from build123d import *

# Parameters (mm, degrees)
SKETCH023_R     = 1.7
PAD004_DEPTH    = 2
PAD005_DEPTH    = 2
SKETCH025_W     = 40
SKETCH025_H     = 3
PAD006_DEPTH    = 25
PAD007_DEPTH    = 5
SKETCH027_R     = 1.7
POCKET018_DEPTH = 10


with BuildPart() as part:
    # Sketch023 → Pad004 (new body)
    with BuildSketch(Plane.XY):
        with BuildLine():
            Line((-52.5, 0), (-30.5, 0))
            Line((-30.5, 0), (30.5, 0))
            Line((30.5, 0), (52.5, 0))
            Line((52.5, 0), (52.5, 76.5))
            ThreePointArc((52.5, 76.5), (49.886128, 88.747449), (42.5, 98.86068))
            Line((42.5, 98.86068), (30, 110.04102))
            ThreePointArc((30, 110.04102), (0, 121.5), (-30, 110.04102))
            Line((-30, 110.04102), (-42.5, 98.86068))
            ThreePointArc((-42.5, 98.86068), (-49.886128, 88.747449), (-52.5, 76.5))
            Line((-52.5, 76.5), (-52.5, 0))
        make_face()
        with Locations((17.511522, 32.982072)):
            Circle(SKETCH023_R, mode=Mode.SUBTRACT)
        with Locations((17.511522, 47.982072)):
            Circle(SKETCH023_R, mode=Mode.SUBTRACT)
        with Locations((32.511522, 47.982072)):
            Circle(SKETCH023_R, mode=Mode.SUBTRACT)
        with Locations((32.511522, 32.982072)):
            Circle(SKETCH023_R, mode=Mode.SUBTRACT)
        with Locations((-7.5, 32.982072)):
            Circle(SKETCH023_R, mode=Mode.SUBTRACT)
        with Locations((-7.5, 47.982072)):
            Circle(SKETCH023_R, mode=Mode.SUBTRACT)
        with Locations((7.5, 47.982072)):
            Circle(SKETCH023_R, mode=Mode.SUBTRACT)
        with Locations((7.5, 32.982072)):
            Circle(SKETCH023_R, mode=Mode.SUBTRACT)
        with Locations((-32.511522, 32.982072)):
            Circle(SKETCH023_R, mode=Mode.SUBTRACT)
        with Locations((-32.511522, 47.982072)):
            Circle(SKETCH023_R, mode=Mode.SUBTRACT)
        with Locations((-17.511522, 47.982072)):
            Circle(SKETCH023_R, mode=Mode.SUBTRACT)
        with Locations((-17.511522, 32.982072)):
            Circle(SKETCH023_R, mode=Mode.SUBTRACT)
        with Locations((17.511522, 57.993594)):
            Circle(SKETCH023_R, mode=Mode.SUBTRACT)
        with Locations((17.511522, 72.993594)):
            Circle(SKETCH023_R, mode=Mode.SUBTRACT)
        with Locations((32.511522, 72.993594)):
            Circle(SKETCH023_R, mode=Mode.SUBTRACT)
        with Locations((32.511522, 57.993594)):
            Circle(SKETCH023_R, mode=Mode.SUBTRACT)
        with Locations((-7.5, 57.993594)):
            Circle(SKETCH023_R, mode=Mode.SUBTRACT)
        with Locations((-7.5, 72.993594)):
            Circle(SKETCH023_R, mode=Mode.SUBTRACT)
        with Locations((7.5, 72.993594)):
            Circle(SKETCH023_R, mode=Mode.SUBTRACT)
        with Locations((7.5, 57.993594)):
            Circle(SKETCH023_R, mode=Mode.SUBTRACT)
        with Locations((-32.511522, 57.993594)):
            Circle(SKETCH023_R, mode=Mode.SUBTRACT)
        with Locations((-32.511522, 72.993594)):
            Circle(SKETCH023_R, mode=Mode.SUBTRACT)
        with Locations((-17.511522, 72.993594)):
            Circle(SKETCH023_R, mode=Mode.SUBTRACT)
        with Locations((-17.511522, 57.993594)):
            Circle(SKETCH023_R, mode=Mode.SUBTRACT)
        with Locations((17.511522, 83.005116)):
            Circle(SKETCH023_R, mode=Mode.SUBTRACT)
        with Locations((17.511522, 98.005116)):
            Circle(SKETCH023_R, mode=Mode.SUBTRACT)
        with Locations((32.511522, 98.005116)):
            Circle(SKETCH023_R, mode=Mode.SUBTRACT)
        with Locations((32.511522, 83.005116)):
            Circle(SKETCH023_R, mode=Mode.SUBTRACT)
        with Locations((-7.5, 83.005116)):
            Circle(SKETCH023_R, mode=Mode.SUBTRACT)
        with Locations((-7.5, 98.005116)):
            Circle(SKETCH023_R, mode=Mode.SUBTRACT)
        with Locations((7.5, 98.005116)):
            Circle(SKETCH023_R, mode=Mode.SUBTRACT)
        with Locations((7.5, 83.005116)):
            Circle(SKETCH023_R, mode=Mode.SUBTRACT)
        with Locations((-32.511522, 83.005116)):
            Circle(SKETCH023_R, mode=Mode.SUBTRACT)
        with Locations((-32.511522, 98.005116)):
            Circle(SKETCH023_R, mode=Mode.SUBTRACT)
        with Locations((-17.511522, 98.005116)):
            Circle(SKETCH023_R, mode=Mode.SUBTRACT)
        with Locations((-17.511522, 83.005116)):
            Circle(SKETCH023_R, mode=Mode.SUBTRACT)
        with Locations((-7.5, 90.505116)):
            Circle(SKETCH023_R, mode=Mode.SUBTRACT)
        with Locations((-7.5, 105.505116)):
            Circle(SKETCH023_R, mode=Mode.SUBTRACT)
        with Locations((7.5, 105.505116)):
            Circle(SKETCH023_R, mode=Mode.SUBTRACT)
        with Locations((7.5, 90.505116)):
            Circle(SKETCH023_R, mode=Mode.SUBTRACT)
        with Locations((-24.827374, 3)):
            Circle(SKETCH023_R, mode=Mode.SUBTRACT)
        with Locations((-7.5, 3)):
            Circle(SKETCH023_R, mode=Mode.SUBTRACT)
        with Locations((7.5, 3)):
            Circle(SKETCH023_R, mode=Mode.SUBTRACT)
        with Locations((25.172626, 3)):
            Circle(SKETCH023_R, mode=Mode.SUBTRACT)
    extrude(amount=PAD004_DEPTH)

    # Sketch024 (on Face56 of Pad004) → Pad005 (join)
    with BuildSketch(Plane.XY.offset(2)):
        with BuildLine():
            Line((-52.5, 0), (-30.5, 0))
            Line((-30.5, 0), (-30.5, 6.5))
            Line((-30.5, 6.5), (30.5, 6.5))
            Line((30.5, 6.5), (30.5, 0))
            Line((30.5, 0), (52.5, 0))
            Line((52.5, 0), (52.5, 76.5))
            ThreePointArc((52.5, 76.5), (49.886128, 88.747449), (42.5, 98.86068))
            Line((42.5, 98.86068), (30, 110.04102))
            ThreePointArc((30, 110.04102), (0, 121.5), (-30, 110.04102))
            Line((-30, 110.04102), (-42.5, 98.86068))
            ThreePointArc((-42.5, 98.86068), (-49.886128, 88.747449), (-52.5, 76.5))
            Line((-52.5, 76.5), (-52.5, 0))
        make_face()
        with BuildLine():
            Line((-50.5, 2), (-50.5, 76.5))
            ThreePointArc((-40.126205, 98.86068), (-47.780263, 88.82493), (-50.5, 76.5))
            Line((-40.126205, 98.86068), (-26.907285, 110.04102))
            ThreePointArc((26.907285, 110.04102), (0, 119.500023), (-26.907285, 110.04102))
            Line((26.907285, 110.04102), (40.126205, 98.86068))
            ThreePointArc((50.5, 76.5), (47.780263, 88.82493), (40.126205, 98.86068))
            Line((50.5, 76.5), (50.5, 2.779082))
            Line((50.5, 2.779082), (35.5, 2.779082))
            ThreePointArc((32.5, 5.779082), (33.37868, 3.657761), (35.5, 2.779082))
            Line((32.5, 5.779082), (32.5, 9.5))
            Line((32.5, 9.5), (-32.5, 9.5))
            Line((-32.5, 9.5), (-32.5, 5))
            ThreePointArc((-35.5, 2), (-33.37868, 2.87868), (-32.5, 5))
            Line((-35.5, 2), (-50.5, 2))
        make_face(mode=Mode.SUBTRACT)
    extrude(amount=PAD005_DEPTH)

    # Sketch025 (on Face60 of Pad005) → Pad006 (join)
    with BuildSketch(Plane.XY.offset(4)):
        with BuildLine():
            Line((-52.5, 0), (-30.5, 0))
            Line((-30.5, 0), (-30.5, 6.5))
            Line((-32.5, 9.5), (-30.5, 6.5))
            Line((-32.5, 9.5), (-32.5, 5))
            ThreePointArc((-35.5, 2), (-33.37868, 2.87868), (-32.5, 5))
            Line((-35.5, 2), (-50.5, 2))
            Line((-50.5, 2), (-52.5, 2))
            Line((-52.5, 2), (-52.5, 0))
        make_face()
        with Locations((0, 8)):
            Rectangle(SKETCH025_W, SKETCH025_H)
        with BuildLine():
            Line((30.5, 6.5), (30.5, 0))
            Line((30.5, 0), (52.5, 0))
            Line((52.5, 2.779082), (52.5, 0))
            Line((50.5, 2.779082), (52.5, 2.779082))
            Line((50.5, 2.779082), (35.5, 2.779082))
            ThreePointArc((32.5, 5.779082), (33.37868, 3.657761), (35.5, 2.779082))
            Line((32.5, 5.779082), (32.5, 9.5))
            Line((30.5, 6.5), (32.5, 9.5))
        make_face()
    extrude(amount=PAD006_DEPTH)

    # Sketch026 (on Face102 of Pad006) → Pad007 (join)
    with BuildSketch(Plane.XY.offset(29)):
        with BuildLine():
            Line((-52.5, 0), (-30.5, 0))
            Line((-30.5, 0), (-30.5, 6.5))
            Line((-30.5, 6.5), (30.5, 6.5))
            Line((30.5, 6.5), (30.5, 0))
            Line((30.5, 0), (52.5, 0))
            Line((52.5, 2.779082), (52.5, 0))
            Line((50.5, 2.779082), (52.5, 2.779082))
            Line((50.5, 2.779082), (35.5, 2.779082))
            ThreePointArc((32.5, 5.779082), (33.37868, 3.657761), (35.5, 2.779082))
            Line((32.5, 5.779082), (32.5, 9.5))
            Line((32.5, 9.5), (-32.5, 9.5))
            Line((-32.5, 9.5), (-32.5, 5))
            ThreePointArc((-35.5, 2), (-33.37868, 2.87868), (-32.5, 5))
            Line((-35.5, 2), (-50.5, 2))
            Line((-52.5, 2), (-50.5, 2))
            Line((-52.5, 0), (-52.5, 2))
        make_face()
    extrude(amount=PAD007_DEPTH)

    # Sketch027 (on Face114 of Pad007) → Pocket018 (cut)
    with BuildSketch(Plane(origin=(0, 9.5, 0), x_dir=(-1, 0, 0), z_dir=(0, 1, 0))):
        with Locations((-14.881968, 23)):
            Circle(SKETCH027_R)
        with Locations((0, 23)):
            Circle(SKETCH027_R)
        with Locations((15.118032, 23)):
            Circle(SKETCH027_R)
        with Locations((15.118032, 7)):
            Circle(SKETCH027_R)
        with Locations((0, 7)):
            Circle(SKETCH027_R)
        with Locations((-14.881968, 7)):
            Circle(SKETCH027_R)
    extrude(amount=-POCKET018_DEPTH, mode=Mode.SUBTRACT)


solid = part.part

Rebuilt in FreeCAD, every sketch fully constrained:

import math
import FreeCAD as App
import Part
import Sketcher

V = App.Vector

doc = App.newDocument("Part")
body = doc.addObject("PartDesign::Body", "Body")

# Sketch on XY plane
sketch1 = body.newObject("Sketcher::SketchObject", "Sketch")
sketch1.AttachmentSupport = (doc.getObject("XY_Plane"), [""])
sketch1.MapMode = "FlatFace"
sketch1.addGeometry([
    Part.LineSegment(V(-52.5, 0, 0), V(52.5, 0, 0)),  # 0
    Part.LineSegment(V(52.5, 0, 0), V(52.5, 76.5, 0)),  # 1
    Part.ArcOfCircle(Part.Circle(V(22.500001, 76.500001, 0), V(0, 0, 1), 29.999999), math.radians(-0.000002), math.radians(48.189686)),  # 2
    Part.LineSegment(V(42.5, 98.86068, 0), V(30, 110.04102, 0)),  # 3
    Part.ArcOfCircle(Part.Circle(V(0, 76.499999, 0), V(0, 0, 1), 45.000001), math.radians(48.189686), math.radians(131.810314)),  # 4
    Part.LineSegment(V(-30, 110.04102, 0), V(-42.5, 98.86068, 0)),  # 5
    Part.ArcOfCircle(Part.Circle(V(-22.500001, 76.500001, 0), V(0, 0, 1), 29.999999), math.radians(131.810314), math.radians(180.000002)),  # 6
    Part.LineSegment(V(-52.5, 76.5, 0), V(-52.5, 0, 0)),  # 7
    Part.Circle(V(-24.827374, 3, 0), V(0, 0, 1), 1.7),  # 8
    Part.Circle(V(-7.5, 3, 0), V(0, 0, 1), 1.7),  # 9
    Part.Circle(V(-32.511522, 32.982072, 0), V(0, 0, 1), 1.7),  # 10
    Part.Circle(V(-17.511522, 32.982072, 0), V(0, 0, 1), 1.7),  # 11
    Part.Circle(V(-32.511522, 47.982072, 0), V(0, 0, 1), 1.7),  # 12
    Part.Circle(V(-17.511522, 47.982072, 0), V(0, 0, 1), 1.7),  # 13
    Part.Circle(V(-7.5, 32.982072, 0), V(0, 0, 1), 1.7),  # 14
    Part.Circle(V(-7.5, 47.982072, 0), V(0, 0, 1), 1.7),  # 15
    Part.Circle(V(7.5, 3, 0), V(0, 0, 1), 1.7),  # 16
    Part.Circle(V(25.172626, 3, 0), V(0, 0, 1), 1.7),  # 17
    Part.Circle(V(7.5, 32.982072, 0), V(0, 0, 1), 1.7),  # 18
    Part.Circle(V(7.5, 47.982072, 0), V(0, 0, 1), 1.7),  # 19
    Part.Circle(V(17.511522, 32.982072, 0), V(0, 0, 1), 1.7),  # 20
    Part.Circle(V(32.511522, 32.982072, 0), V(0, 0, 1), 1.7),  # 21
    Part.Circle(V(17.511522, 47.982072, 0), V(0, 0, 1), 1.7),  # 22
    Part.Circle(V(32.511522, 47.982072, 0), V(0, 0, 1), 1.7),  # 23
    Part.Circle(V(-32.511522, 57.993594, 0), V(0, 0, 1), 1.7),  # 24
    Part.Circle(V(-17.511522, 57.993594, 0), V(0, 0, 1), 1.7),  # 25
    Part.Circle(V(-32.511522, 72.993594, 0), V(0, 0, 1), 1.7),  # 26
    Part.Circle(V(-17.511522, 72.993594, 0), V(0, 0, 1), 1.7),  # 27
    Part.Circle(V(-7.5, 57.993594, 0), V(0, 0, 1), 1.7),  # 28
    Part.Circle(V(-7.5, 72.993594, 0), V(0, 0, 1), 1.7),  # 29
    Part.Circle(V(-32.511522, 83.005116, 0), V(0, 0, 1), 1.7),  # 30
    Part.Circle(V(-17.511522, 83.005116, 0), V(0, 0, 1), 1.7),  # 31
    Part.Circle(V(-32.511522, 98.005116, 0), V(0, 0, 1), 1.7),  # 32
    Part.Circle(V(-17.511522, 98.005116, 0), V(0, 0, 1), 1.7),  # 33
    Part.Circle(V(-7.5, 83.005116, 0), V(0, 0, 1), 1.7),  # 34
    Part.Circle(V(-7.5, 90.505116, 0), V(0, 0, 1), 1.7),  # 35
    Part.Circle(V(-7.5, 98.005116, 0), V(0, 0, 1), 1.7),  # 36
    Part.Circle(V(-7.5, 105.505116, 0), V(0, 0, 1), 1.7),  # 37
    Part.Circle(V(7.5, 57.993594, 0), V(0, 0, 1), 1.7),  # 38
    Part.Circle(V(7.5, 72.993594, 0), V(0, 0, 1), 1.7),  # 39
    Part.Circle(V(17.511522, 57.993594, 0), V(0, 0, 1), 1.7),  # 40
    Part.Circle(V(32.511522, 57.993594, 0), V(0, 0, 1), 1.7),  # 41
    Part.Circle(V(17.511522, 72.993594, 0), V(0, 0, 1), 1.7),  # 42
    Part.Circle(V(32.511522, 72.993594, 0), V(0, 0, 1), 1.7),  # 43
    Part.Circle(V(7.5, 83.005116, 0), V(0, 0, 1), 1.7),  # 44
    Part.Circle(V(7.5, 90.505116, 0), V(0, 0, 1), 1.7),  # 45
    Part.Circle(V(7.5, 98.005116, 0), V(0, 0, 1), 1.7),  # 46
    Part.Circle(V(7.5, 105.505116, 0), V(0, 0, 1), 1.7),  # 47
    Part.Circle(V(17.511522, 83.005116, 0), V(0, 0, 1), 1.7),  # 48
    Part.Circle(V(32.511522, 83.005116, 0), V(0, 0, 1), 1.7),  # 49
    Part.Circle(V(17.511522, 98.005116, 0), V(0, 0, 1), 1.7),  # 50
    Part.Circle(V(32.511522, 98.005116, 0), V(0, 0, 1), 1.7),  # 51
], False)
sketch1.addConstraint([
    Sketcher.Constraint("Coincident", 0, 2, 1, 1),
    Sketcher.Constraint("Tangent", 1, 2, 2, 1),
    Sketcher.Constraint("Tangent", 2, 2, 3, 1),
    Sketcher.Constraint("Tangent", 3, 2, 4, 1),
    Sketcher.Constraint("Tangent", 4, 2, 5, 1),
    Sketcher.Constraint("Tangent", 5, 2, 6, 1),
    Sketcher.Constraint("Tangent", 6, 2, 7, 1),
    Sketcher.Constraint("Coincident", 7, 2, 0, 1),
    Sketcher.Constraint("Horizontal", 0),
    Sketcher.Constraint("Vertical", 1),
    Sketcher.Constraint("Vertical", 7),
    Sketcher.Constraint("Equal", 2, 6),
    Sketcher.Constraint("Equal", 8, 9),
    Sketcher.Constraint("Equal", 9, 10),
    Sketcher.Constraint("Equal", 10, 11),
    Sketcher.Constraint("Equal", 11, 12),
    Sketcher.Constraint("Equal", 12, 13),
    Sketcher.Constraint("Equal", 13, 14),
    Sketcher.Constraint("Equal", 14, 15),
    Sketcher.Constraint("Equal", 15, 16),
    Sketcher.Constraint("Equal", 16, 17),
    Sketcher.Constraint("Equal", 17, 18),
    Sketcher.Constraint("Equal", 18, 19),
    Sketcher.Constraint("Equal", 19, 20),
    Sketcher.Constraint("Equal", 20, 21),
    Sketcher.Constraint("Equal", 21, 22),
    Sketcher.Constraint("Equal", 22, 23),
    Sketcher.Constraint("Equal", 23, 24),
    Sketcher.Constraint("Equal", 24, 25),
    Sketcher.Constraint("Equal", 25, 26),
    Sketcher.Constraint("Equal", 26, 27),
    Sketcher.Constraint("Equal", 27, 28),
    Sketcher.Constraint("Equal", 28, 29),
    Sketcher.Constraint("Equal", 29, 30),
    Sketcher.Constraint("Equal", 30, 31),
    Sketcher.Constraint("Equal", 31, 32),
    Sketcher.Constraint("Equal", 32, 33),
    Sketcher.Constraint("Equal", 33, 34),
    Sketcher.Constraint("Equal", 34, 35),
    Sketcher.Constraint("Equal", 35, 36),
    Sketcher.Constraint("Equal", 36, 37),
    Sketcher.Constraint("Equal", 37, 38),
    Sketcher.Constraint("Equal", 38, 39),
    Sketcher.Constraint("Equal", 39, 40),
    Sketcher.Constraint("Equal", 40, 41),
    Sketcher.Constraint("Equal", 41, 42),
    Sketcher.Constraint("Equal", 42, 43),
    Sketcher.Constraint("Equal", 43, 44),
    Sketcher.Constraint("Equal", 44, 45),
    Sketcher.Constraint("Equal", 45, 46),
    Sketcher.Constraint("Equal", 46, 47),
    Sketcher.Constraint("Equal", 47, 48),
    Sketcher.Constraint("Equal", 48, 49),
    Sketcher.Constraint("Equal", 49, 50),
    Sketcher.Constraint("Equal", 50, 51),
    Sketcher.Constraint("Symmetric", 0, 2, 7, 2, -1, 1),
    Sketcher.Constraint("Symmetric", 9, 3, 16, 3, -2),
    Sketcher.Constraint("Symmetric", 14, 3, 18, 3, -2),
    Sketcher.Constraint("Symmetric", 15, 3, 19, 3, -2),
    Sketcher.Constraint("Symmetric", 11, 3, 20, 3, -2),
    Sketcher.Constraint("Symmetric", 10, 3, 21, 3, -2),
    Sketcher.Constraint("Symmetric", 13, 3, 22, 3, -2),
    Sketcher.Constraint("Symmetric", 12, 3, 23, 3, -2),
    Sketcher.Constraint("Symmetric", 28, 3, 38, 3, -2),
    Sketcher.Constraint("Symmetric", 29, 3, 39, 3, -2),
    Sketcher.Constraint("Symmetric", 25, 3, 40, 3, -2),
    Sketcher.Constraint("Symmetric", 24, 3, 41, 3, -2),
    Sketcher.Constraint("Symmetric", 27, 3, 42, 3, -2),
    Sketcher.Constraint("Symmetric", 26, 3, 43, 3, -2),
    Sketcher.Constraint("Symmetric", 34, 3, 44, 3, -2),
    Sketcher.Constraint("Symmetric", 35, 3, 45, 3, -2),
    Sketcher.Constraint("Symmetric", 36, 3, 46, 3, -2),
    Sketcher.Constraint("Symmetric", 37, 3, 47, 3, -2),
    Sketcher.Constraint("Symmetric", 31, 3, 48, 3, -2),
    Sketcher.Constraint("Symmetric", 30, 3, 49, 3, -2),
    Sketcher.Constraint("Symmetric", 33, 3, 50, 3, -2),
    Sketcher.Constraint("Symmetric", 32, 3, 51, 3, -2),
    Sketcher.Constraint("Symmetric", 3, 2, 4, 2, -2),
    Sketcher.Constraint("Horizontal", 2, 3, 4, 3),
    Sketcher.Constraint("Horizontal", 8, 3, 9, 3),
    Sketcher.Constraint("Horizontal", 10, 3, 11, 3),
    Sketcher.Constraint("Horizontal", 12, 3, 13, 3),
    Sketcher.Constraint("Horizontal", 11, 3, 14, 3),
    Sketcher.Constraint("Horizontal", 13, 3, 15, 3),
    Sketcher.Constraint("Horizontal", 16, 3, 17, 3),
    Sketcher.Constraint("Horizontal", 24, 3, 25, 3),
    Sketcher.Constraint("Horizontal", 26, 3, 27, 3),
    Sketcher.Constraint("Horizontal", 25, 3, 28, 3),
    Sketcher.Constraint("Horizontal", 27, 3, 29, 3),
    Sketcher.Constraint("Horizontal", 30, 3, 31, 3),
    Sketcher.Constraint("Horizontal", 32, 3, 33, 3),
    Sketcher.Constraint("Horizontal", 31, 3, 34, 3),
    Sketcher.Constraint("Horizontal", 33, 3, 36, 3),
    Sketcher.Constraint("Vertical", 10, 3, 12, 3),
    Sketcher.Constraint("Vertical", 11, 3, 13, 3),
    Sketcher.Constraint("Vertical", 9, 3, 14, 3),
    Sketcher.Constraint("Vertical", 14, 3, 15, 3),
    Sketcher.Constraint("Vertical", 12, 3, 24, 3),
    Sketcher.Constraint("Vertical", 13, 3, 25, 3),
    Sketcher.Constraint("Vertical", 24, 3, 26, 3),
    Sketcher.Constraint("Vertical", 25, 3, 27, 3),
    Sketcher.Constraint("Vertical", 15, 3, 28, 3),
    Sketcher.Constraint("Vertical", 28, 3, 29, 3),
    Sketcher.Constraint("Vertical", 26, 3, 30, 3),
    Sketcher.Constraint("Vertical", 27, 3, 31, 3),
    Sketcher.Constraint("Vertical", 30, 3, 32, 3),
    Sketcher.Constraint("Vertical", 31, 3, 33, 3),
    Sketcher.Constraint("Vertical", 29, 3, 34, 3),
    Sketcher.Constraint("Vertical", 34, 3, 35, 3),
    Sketcher.Constraint("Vertical", 35, 3, 36, 3),
    Sketcher.Constraint("Vertical", 36, 3, 37, 3),
    Sketcher.Constraint("Radius", 2, 29.999999),
    Sketcher.Constraint("Radius", 4, 45.000001),
    Sketcher.Constraint("Diameter", 8, 3.4),
    Sketcher.Constraint("DistanceX", 0, 1, 0, 2, 105.0),
    Sketcher.Constraint("DistanceY", 1, 1, 1, 2, 76.5),
    Sketcher.Constraint("DistanceY", -1, 1, 8, 3, 3.0),
    Sketcher.Constraint("DistanceX", 6, 3, 9, 3, 15.000001),
    Sketcher.Constraint("DistanceX", 10, 3, 11, 3, 15.0),
    Sketcher.Constraint("DistanceY", 10, 3, 12, 3, 15.0),
    Sketcher.Constraint("DistanceX", 8, 3, 17, 3, 50.0),
    Sketcher.Constraint("DistanceY", 24, 3, 26, 3, 15.0),
    Sketcher.Constraint("DistanceY", 30, 3, 32, 3, 15.0),
    Sketcher.Constraint("DistanceY", 35, 3, 37, 3, 15.0),
    Sketcher.Constraint("DistanceY", 34, 3, 35, 3, 7.5),
    Sketcher.Constraint("DistanceX", 11, 3, -1, 1, 17.511522),
    Sketcher.Constraint("DistanceX", 10, 3, 8, 3, 7.684148),
    Sketcher.Constraint("DistanceY", 10, 3, 6, 3, 43.517929),
    Sketcher.Constraint("DistanceY", 12, 3, 24, 3, 10.011522),
    Sketcher.Constraint("DistanceY", 26, 3, 30, 3, 10.011522),
])
pad1 = body.newObject("PartDesign::Pad", "Pad")
pad1.Profile = sketch1
pad1.Length = 2

# Sketch on XY plane
sketch2 = body.newObject("Sketcher::SketchObject", "Sketch001")
sketch2.AttachmentSupport = (doc.getObject("XY_Plane"), [""])
sketch2.MapMode = "FlatFace"
sketch2.AttachmentOffset = App.Placement(V(0, 0, 2), App.Rotation())
sketch2.addGeometry([
    Part.LineSegment(V(-52.5, 0, 0), V(-30.5, 0, 0)),  # 0
    Part.LineSegment(V(-30.5, 0, 0), V(-30.5, 6.5, 0)),  # 1
    Part.LineSegment(V(-30.5, 6.5, 0), V(30.5, 6.5, 0)),  # 2
    Part.LineSegment(V(30.5, 6.5, 0), V(30.5, 0, 0)),  # 3
    Part.LineSegment(V(30.5, 0, 0), V(52.5, 0, 0)),  # 4
    Part.LineSegment(V(52.5, 0, 0), V(52.5, 76.5, 0)),  # 5
    Part.ArcOfCircle(Part.Circle(V(22.500001, 76.500001, 0), V(0, 0, 1), 29.999999), math.radians(-0.000002), math.radians(48.189686)),  # 6
    Part.LineSegment(V(42.5, 98.86068, 0), V(30, 110.04102, 0)),  # 7
    Part.ArcOfCircle(Part.Circle(V(0, 76.499999, 0), V(0, 0, 1), 45.000001), math.radians(48.189686), math.radians(131.810314)),  # 8
    Part.LineSegment(V(-30, 110.04102, 0), V(-42.5, 98.86068, 0)),  # 9
    Part.ArcOfCircle(Part.Circle(V(-22.500001, 76.500001, 0), V(0, 0, 1), 29.999999), math.radians(131.810314), math.radians(180.000002)),  # 10
    Part.LineSegment(V(-52.5, 76.5, 0), V(-52.5, 0, 0)),  # 11
    Part.LineSegment(V(-35.5, 2, 0), V(-50.5, 2, 0)),  # 12
    Part.LineSegment(V(-50.5, 2, 0), V(-50.5, 76.5, 0)),  # 13
    Part.ArcOfCircle(Part.Circle(V(-21.213915, 76.499999, 0), V(0, 0, 1), 29.286085), math.radians(130.223983), math.radians(179.999998)),  # 14
    Part.LineSegment(V(-40.126205, 98.86068, 0), V(-26.907285, 110.04102, 0)),  # 15
    Part.ArcOfCircle(Part.Circle(V(0, 76.499998, 0), V(0, 0, 1), 43.000025), math.radians(51.26271), math.radians(128.73729)),  # 16
    Part.LineSegment(V(26.907285, 110.04102, 0), V(40.126205, 98.86068, 0)),  # 17
    Part.ArcOfCircle(Part.Circle(V(21.213915, 76.499999, 0), V(0, 0, 1), 29.286085), math.radians(0.000002), math.radians(49.776017)),  # 18
    Part.LineSegment(V(50.5, 76.5, 0), V(50.5, 2.779082, 0)),  # 19
    Part.LineSegment(V(50.5, 2.779082, 0), V(35.5, 2.779082, 0)),  # 20
    Part.ArcOfCircle(Part.Circle(V(35.499999, 5.779081, 0), V(0, 0, 1), 2.999999), math.radians(179.99999), math.radians(270.00001)),  # 21
    Part.LineSegment(V(32.5, 5.779082, 0), V(32.5, 9.5, 0)),  # 22
    Part.LineSegment(V(32.5, 9.5, 0), V(-32.5, 9.5, 0)),  # 23
    Part.LineSegment(V(-32.5, 9.5, 0), V(-32.5, 5, 0)),  # 24
    Part.ArcOfCircle(Part.Circle(V(-35.500001, 5.000001, 0), V(0, 0, 1), 3.000001), math.radians(-89.999978), math.radians(-0.000022)),  # 25
], False)
sketch2.addConstraint([
    Sketcher.Constraint("Coincident", 0, 2, 1, 1),
    Sketcher.Constraint("Coincident", 1, 2, 2, 1),
    Sketcher.Constraint("Coincident", 2, 2, 3, 1),
    Sketcher.Constraint("Coincident", 3, 2, 4, 1),
    Sketcher.Constraint("Coincident", 4, 2, 5, 1),
    Sketcher.Constraint("Tangent", 5, 2, 6, 1),
    Sketcher.Constraint("Tangent", 6, 2, 7, 1),
    Sketcher.Constraint("Tangent", 7, 2, 8, 1),
    Sketcher.Constraint("Tangent", 8, 2, 9, 1),
    Sketcher.Constraint("Tangent", 9, 2, 10, 1),
    Sketcher.Constraint("Tangent", 10, 2, 11, 1),
    Sketcher.Constraint("Coincident", 11, 2, 0, 1),
    Sketcher.Constraint("Coincident", 12, 2, 13, 1),
    Sketcher.Constraint("Tangent", 13, 2, 14, 2),
    Sketcher.Constraint("Tangent", 14, 1, 15, 1),
    Sketcher.Constraint("Coincident", 15, 2, 16, 2),
    Sketcher.Constraint("Coincident", 16, 1, 17, 1),
    Sketcher.Constraint("Tangent", 17, 2, 18, 2),
    Sketcher.Constraint("Tangent", 18, 1, 19, 1),
    Sketcher.Constraint("Coincident", 19, 2, 20, 1),
    Sketcher.Constraint("Tangent", 20, 2, 21, 2),
    Sketcher.Constraint("Tangent", 21, 1, 22, 1),
    Sketcher.Constraint("Coincident", 22, 2, 23, 1),
    Sketcher.Constraint("Coincident", 23, 2, 24, 1),
    Sketcher.Constraint("Tangent", 24, 2, 25, 2),
    Sketcher.Constraint("Tangent", 25, 1, 12, 1),
    Sketcher.Constraint("Horizontal", 0),
    Sketcher.Constraint("Vertical", 1),
    Sketcher.Constraint("Horizontal", 2),
    Sketcher.Constraint("Vertical", 3),
    Sketcher.Constraint("Horizontal", 4),
    Sketcher.Constraint("Vertical", 5),
    Sketcher.Constraint("Vertical", 11),
    Sketcher.Constraint("Horizontal", 12),
    Sketcher.Constraint("Vertical", 13),
    Sketcher.Constraint("Vertical", 19),
    Sketcher.Constraint("Horizontal", 20),
    Sketcher.Constraint("Vertical", 22),
    Sketcher.Constraint("Horizontal", 23),
    Sketcher.Constraint("Vertical", 24),
    Sketcher.Constraint("Coincident", 16, 3, 8, 3),
    Sketcher.Constraint("Equal", 6, 10),
    Sketcher.Constraint("Equal", 14, 18),
    Sketcher.Constraint("Equal", 21, 25),
    Sketcher.Constraint("Symmetric", 0, 2, 3, 2, -1, 1),
    Sketcher.Constraint("Symmetric", 6, 3, 10, 3, -2),
    Sketcher.Constraint("Symmetric", 14, 3, 18, 3, -2),
    Sketcher.Constraint("Symmetric", 15, 2, 16, 1, -2),
    Sketcher.Constraint("PointOnObject", 0, 2, -1),
    Sketcher.Constraint("Horizontal", 6, 3, 8, 3),
    Sketcher.Constraint("Horizontal", 8, 3, 14, 3),
    Sketcher.Constraint("Horizontal", 9, 2, 14, 1),
    Sketcher.Constraint("Horizontal", 8, 2, 15, 2),
    Sketcher.Constraint("Equal", 12, 20),
    Sketcher.Constraint("Radius", 6, 29.999999),
    Sketcher.Constraint("Radius", 8, 45.000001),
    Sketcher.Constraint("Radius", 21, 2.999999),
    Sketcher.Constraint("DistanceX", 0, 1, 0, 2, 22.0),
    Sketcher.Constraint("DistanceX", 2, 1, 2, 2, 61.0),
    Sketcher.Constraint("DistanceX", 12, 2, 12, 1, 15.0),
    Sketcher.Constraint("DistanceX", 23, 2, 23, 1, 65.0),
    Sketcher.Constraint("DistanceY", 1, 1, 1, 2, 6.5),
    Sketcher.Constraint("DistanceY", 5, 1, 5, 2, 76.5),
    Sketcher.Constraint("DistanceY", 13, 1, 13, 2, 74.5),
    Sketcher.Constraint("DistanceY", 24, 2, 24, 1, 4.5),
    Sketcher.Constraint("Radius", 14, 29.286085),
    Sketcher.Constraint("DistanceY", 22, 1, 22, 2, 3.720918),
])
pad2 = body.newObject("PartDesign::Pad", "Pad001")
pad2.Profile = sketch2
pad2.Length = 2

# Sketch on XY plane
sketch3 = body.newObject("Sketcher::SketchObject", "Sketch002")
sketch3.AttachmentSupport = (doc.getObject("XY_Plane"), [""])
sketch3.MapMode = "FlatFace"
sketch3.AttachmentOffset = App.Placement(V(0, 0, 4), App.Rotation())
sketch3.addGeometry([
    Part.LineSegment(V(-52.5, 0, 0), V(-30.5, 0, 0)),  # 0
    Part.LineSegment(V(-30.5, 0, 0), V(-30.5, 6.5, 0)),  # 1
    Part.LineSegment(V(-30.5, 6.5, 0), V(-32.5, 9.5, 0)),  # 2
    Part.LineSegment(V(-32.5, 9.5, 0), V(-32.5, 5, 0)),  # 3
    Part.ArcOfCircle(Part.Circle(V(-35.500001, 5.000001, 0), V(0, 0, 1), 3.000001), math.radians(-89.999978), math.radians(-0.000022)),  # 4
    Part.LineSegment(V(-35.5, 2, 0), V(-52.5, 2, 0)),  # 5
    Part.LineSegment(V(-52.5, 2, 0), V(-52.5, 0, 0)),  # 6
    Part.LineSegment(V(-20, 9.5, 0), V(-20, 6.5, 0)),  # 7
    Part.LineSegment(V(-20, 6.5, 0), V(20, 6.5, 0)),  # 8
    Part.LineSegment(V(20, 6.5, 0), V(20, 9.5, 0)),  # 9
    Part.LineSegment(V(20, 9.5, 0), V(-20, 9.5, 0)),  # 10
    Part.LineSegment(V(30.5, 6.5, 0), V(30.5, 0, 0)),  # 11
    Part.LineSegment(V(30.5, 0, 0), V(52.5, 0, 0)),  # 12
    Part.LineSegment(V(52.5, 0, 0), V(52.5, 2.779082, 0)),  # 13
    Part.LineSegment(V(52.5, 2.779082, 0), V(35.5, 2.779082, 0)),  # 14
    Part.ArcOfCircle(Part.Circle(V(35.499999, 5.779081, 0), V(0, 0, 1), 2.999999), math.radians(179.99999), math.radians(270.00001)),  # 15
    Part.LineSegment(V(32.5, 5.779082, 0), V(32.5, 9.5, 0)),  # 16
    Part.LineSegment(V(32.5, 9.5, 0), V(30.5, 6.5, 0)),  # 17
], False)
sketch3.addConstraint([
    Sketcher.Constraint("Coincident", 0, 2, 1, 1),
    Sketcher.Constraint("Coincident", 1, 2, 2, 1),
    Sketcher.Constraint("Coincident", 2, 2, 3, 1),
    Sketcher.Constraint("Tangent", 3, 2, 4, 2),
    Sketcher.Constraint("Tangent", 4, 1, 5, 1),
    Sketcher.Constraint("Coincident", 5, 2, 6, 1),
    Sketcher.Constraint("Coincident", 6, 2, 0, 1),
    Sketcher.Constraint("Coincident", 7, 2, 8, 1),
    Sketcher.Constraint("Coincident", 8, 2, 9, 1),
    Sketcher.Constraint("Coincident", 9, 2, 10, 1),
    Sketcher.Constraint("Coincident", 10, 2, 7, 1),
    Sketcher.Constraint("Coincident", 11, 2, 12, 1),
    Sketcher.Constraint("Coincident", 12, 2, 13, 1),
    Sketcher.Constraint("Coincident", 13, 2, 14, 1),
    Sketcher.Constraint("Tangent", 14, 2, 15, 2),
    Sketcher.Constraint("Tangent", 15, 1, 16, 1),
    Sketcher.Constraint("Coincident", 16, 2, 17, 1),
    Sketcher.Constraint("Coincident", 17, 2, 11, 1),
    Sketcher.Constraint("Horizontal", 0),
    Sketcher.Constraint("Vertical", 1),
    Sketcher.Constraint("Vertical", 3),
    Sketcher.Constraint("Horizontal", 5),
    Sketcher.Constraint("Vertical", 6),
    Sketcher.Constraint("Vertical", 7),
    Sketcher.Constraint("Horizontal", 8),
    Sketcher.Constraint("Vertical", 9),
    Sketcher.Constraint("Horizontal", 10),
    Sketcher.Constraint("Vertical", 11),
    Sketcher.Constraint("Horizontal", 12),
    Sketcher.Constraint("Vertical", 13),
    Sketcher.Constraint("Horizontal", 14),
    Sketcher.Constraint("Vertical", 16),
    Sketcher.Constraint("Equal", 4, 15),
    Sketcher.Constraint("Symmetric", 0, 2, 11, 2, -1, 1),
    Sketcher.Constraint("Symmetric", 6, 2, 12, 2, -2),
    Sketcher.Constraint("Symmetric", 2, 2, 16, 2, -2),
    Sketcher.Constraint("Horizontal", 1, 2, 7, 2),
    Sketcher.Constraint("Horizontal", 2, 2, 9, 2),
    Sketcher.Constraint("Horizontal", 8, 2, 17, 2),
    Sketcher.Constraint("Radius", 4, 3.000001),
    Sketcher.Constraint("DistanceX", 0, 1, 0, 2, 22.0),
    Sketcher.Constraint("DistanceX", 5, 2, 5, 1, 17.0),
    Sketcher.Constraint("DistanceX", 8, 1, 8, 2, 40.0),
    Sketcher.Constraint("DistanceY", 6, 2, 6, 1, 2.0),
    Sketcher.Constraint("DistanceY", 7, 2, 7, 1, 3.0),
    Sketcher.Constraint("DistanceY", 1, 1, 1, 2, 6.5),
    Sketcher.Constraint("DistanceX", 7, 2, -1, 1, 20.0),
    Sketcher.Constraint("DistanceX", 4, 3, 15, 3, 71.000001),
    Sketcher.Constraint("DistanceY", 13, 1, 13, 2, 2.779082),
])
pad3 = body.newObject("PartDesign::Pad", "Pad002")
pad3.Profile = sketch3
pad3.Length = 25

# Sketch on XY plane
sketch4 = body.newObject("Sketcher::SketchObject", "Sketch003")
sketch4.AttachmentSupport = (doc.getObject("XY_Plane"), [""])
sketch4.MapMode = "FlatFace"
sketch4.AttachmentOffset = App.Placement(V(0, 0, 29), App.Rotation())
sketch4.addGeometry([
    Part.LineSegment(V(-52.5, 0, 0), V(-30.5, 0, 0)),  # 0
    Part.LineSegment(V(-30.5, 0, 0), V(-30.5, 6.5, 0)),  # 1
    Part.LineSegment(V(-30.5, 6.5, 0), V(30.5, 6.5, 0)),  # 2
    Part.LineSegment(V(30.5, 6.5, 0), V(30.5, 0, 0)),  # 3
    Part.LineSegment(V(30.5, 0, 0), V(52.5, 0, 0)),  # 4
    Part.LineSegment(V(52.5, 0, 0), V(52.5, 2.779082, 0)),  # 5
    Part.LineSegment(V(52.5, 2.779082, 0), V(35.5, 2.779082, 0)),  # 6
    Part.ArcOfCircle(Part.Circle(V(35.499999, 5.779081, 0), V(0, 0, 1), 2.999999), math.radians(179.99999), math.radians(270.00001)),  # 7
    Part.LineSegment(V(32.5, 5.779082, 0), V(32.5, 9.5, 0)),  # 8
    Part.LineSegment(V(32.5, 9.5, 0), V(-32.5, 9.5, 0)),  # 9
    Part.LineSegment(V(-32.5, 9.5, 0), V(-32.5, 5, 0)),  # 10
    Part.ArcOfCircle(Part.Circle(V(-35.500001, 5.000001, 0), V(0, 0, 1), 3.000001), math.radians(-89.999978), math.radians(-0.000022)),  # 11
    Part.LineSegment(V(-35.5, 2, 0), V(-52.5, 2, 0)),  # 12
    Part.LineSegment(V(-52.5, 2, 0), V(-52.5, 0, 0)),  # 13
], False)
sketch4.addConstraint([
    Sketcher.Constraint("Coincident", 0, 2, 1, 1),
    Sketcher.Constraint("Coincident", 1, 2, 2, 1),
    Sketcher.Constraint("Coincident", 2, 2, 3, 1),
    Sketcher.Constraint("Coincident", 3, 2, 4, 1),
    Sketcher.Constraint("Coincident", 4, 2, 5, 1),
    Sketcher.Constraint("Coincident", 5, 2, 6, 1),
    Sketcher.Constraint("Tangent", 6, 2, 7, 2),
    Sketcher.Constraint("Tangent", 7, 1, 8, 1),
    Sketcher.Constraint("Coincident", 8, 2, 9, 1),
    Sketcher.Constraint("Coincident", 9, 2, 10, 1),
    Sketcher.Constraint("Tangent", 10, 2, 11, 2),
    Sketcher.Constraint("Tangent", 11, 1, 12, 1),
    Sketcher.Constraint("Coincident", 12, 2, 13, 1),
    Sketcher.Constraint("Coincident", 13, 2, 0, 1),
    Sketcher.Constraint("Horizontal", 0),
    Sketcher.Constraint("Vertical", 1),
    Sketcher.Constraint("Horizontal", 2),
    Sketcher.Constraint("Vertical", 3),
    Sketcher.Constraint("Horizontal", 4),
    Sketcher.Constraint("Vertical", 5),
    Sketcher.Constraint("Horizontal", 6),
    Sketcher.Constraint("Vertical", 8),
    Sketcher.Constraint("Horizontal", 9),
    Sketcher.Constraint("Vertical", 10),
    Sketcher.Constraint("Horizontal", 12),
    Sketcher.Constraint("Vertical", 13),
    Sketcher.Constraint("Equal", 7, 11),
    Sketcher.Constraint("Symmetric", 0, 2, 3, 2, -1, 1),
    Sketcher.Constraint("Symmetric", 4, 2, 13, 2, -2),
    Sketcher.Constraint("Equal", 6, 12),
    Sketcher.Constraint("Radius", 7, 2.999999),
    Sketcher.Constraint("DistanceX", 0, 1, 0, 2, 22.0),
    Sketcher.Constraint("DistanceX", 2, 1, 2, 2, 61.0),
    Sketcher.Constraint("DistanceX", 6, 2, 6, 1, 17.0),
    Sketcher.Constraint("DistanceY", 13, 2, 13, 1, 2.0),
    Sketcher.Constraint("DistanceY", 1, 1, 1, 2, 6.5),
    Sketcher.Constraint("DistanceY", 10, 2, 10, 1, 4.5),
    Sketcher.Constraint("DistanceY", 5, 1, 5, 2, 2.779082),
])
pad4 = body.newObject("PartDesign::Pad", "Pad003")
pad4.Profile = sketch4
pad4.Length = 5

# Sketch on XZ plane
sketch5 = body.newObject("Sketcher::SketchObject", "Sketch004")
sketch5.AttachmentSupport = (doc.getObject("XZ_Plane"), [""])
sketch5.MapMode = "FlatFace"
sketch5.AttachmentOffset = App.Placement(V(0, 0, -9.5), App.Rotation())
sketch5.addGeometry([
    Part.Circle(V(14.881968, 23, 0), V(0, 0, 1), 1.7),  # 0
    Part.Circle(V(0, 23, 0), V(0, 0, 1), 1.7),  # 1
    Part.Circle(V(-15.118032, 23, 0), V(0, 0, 1), 1.7),  # 2
    Part.Circle(V(-15.118032, 7, 0), V(0, 0, 1), 1.7),  # 3
    Part.Circle(V(0, 7, 0), V(0, 0, 1), 1.7),  # 4
    Part.Circle(V(14.881968, 7, 0), V(0, 0, 1), 1.7),  # 5
], False)
sketch5.addConstraint([
    Sketcher.Constraint("Equal", 0, 1),
    Sketcher.Constraint("Equal", 1, 2),
    Sketcher.Constraint("Equal", 2, 3),
    Sketcher.Constraint("Equal", 3, 4),
    Sketcher.Constraint("Equal", 4, 5),
    Sketcher.Constraint("PointOnObject", 1, 3, -2),
    Sketcher.Constraint("PointOnObject", 4, 3, -2),
    Sketcher.Constraint("Horizontal", 0, 3, 1, 3),
    Sketcher.Constraint("Horizontal", 1, 3, 2, 3),
    Sketcher.Constraint("Horizontal", 3, 3, 4, 3),
    Sketcher.Constraint("Horizontal", 4, 3, 5, 3),
    Sketcher.Constraint("Vertical", 2, 3, 3, 3),
    Sketcher.Constraint("Vertical", 0, 3, 5, 3),
    Sketcher.Constraint("Diameter", 0, 3.4),
    Sketcher.Constraint("DistanceY", -1, 1, 0, 3, 23.0),
    Sketcher.Constraint("DistanceY", -1, 1, 3, 3, 7.0),
    Sketcher.Constraint("DistanceX", 2, 3, 0, 3, 30.0),
    Sketcher.Constraint("DistanceX", -1, 1, 0, 3, 14.881968),
])
pocket1 = body.newObject("PartDesign::Pocket", "Pocket")
pocket1.Profile = sketch5
pocket1.Length = 10
pocket1.Reversed = True

doc.recompute()
